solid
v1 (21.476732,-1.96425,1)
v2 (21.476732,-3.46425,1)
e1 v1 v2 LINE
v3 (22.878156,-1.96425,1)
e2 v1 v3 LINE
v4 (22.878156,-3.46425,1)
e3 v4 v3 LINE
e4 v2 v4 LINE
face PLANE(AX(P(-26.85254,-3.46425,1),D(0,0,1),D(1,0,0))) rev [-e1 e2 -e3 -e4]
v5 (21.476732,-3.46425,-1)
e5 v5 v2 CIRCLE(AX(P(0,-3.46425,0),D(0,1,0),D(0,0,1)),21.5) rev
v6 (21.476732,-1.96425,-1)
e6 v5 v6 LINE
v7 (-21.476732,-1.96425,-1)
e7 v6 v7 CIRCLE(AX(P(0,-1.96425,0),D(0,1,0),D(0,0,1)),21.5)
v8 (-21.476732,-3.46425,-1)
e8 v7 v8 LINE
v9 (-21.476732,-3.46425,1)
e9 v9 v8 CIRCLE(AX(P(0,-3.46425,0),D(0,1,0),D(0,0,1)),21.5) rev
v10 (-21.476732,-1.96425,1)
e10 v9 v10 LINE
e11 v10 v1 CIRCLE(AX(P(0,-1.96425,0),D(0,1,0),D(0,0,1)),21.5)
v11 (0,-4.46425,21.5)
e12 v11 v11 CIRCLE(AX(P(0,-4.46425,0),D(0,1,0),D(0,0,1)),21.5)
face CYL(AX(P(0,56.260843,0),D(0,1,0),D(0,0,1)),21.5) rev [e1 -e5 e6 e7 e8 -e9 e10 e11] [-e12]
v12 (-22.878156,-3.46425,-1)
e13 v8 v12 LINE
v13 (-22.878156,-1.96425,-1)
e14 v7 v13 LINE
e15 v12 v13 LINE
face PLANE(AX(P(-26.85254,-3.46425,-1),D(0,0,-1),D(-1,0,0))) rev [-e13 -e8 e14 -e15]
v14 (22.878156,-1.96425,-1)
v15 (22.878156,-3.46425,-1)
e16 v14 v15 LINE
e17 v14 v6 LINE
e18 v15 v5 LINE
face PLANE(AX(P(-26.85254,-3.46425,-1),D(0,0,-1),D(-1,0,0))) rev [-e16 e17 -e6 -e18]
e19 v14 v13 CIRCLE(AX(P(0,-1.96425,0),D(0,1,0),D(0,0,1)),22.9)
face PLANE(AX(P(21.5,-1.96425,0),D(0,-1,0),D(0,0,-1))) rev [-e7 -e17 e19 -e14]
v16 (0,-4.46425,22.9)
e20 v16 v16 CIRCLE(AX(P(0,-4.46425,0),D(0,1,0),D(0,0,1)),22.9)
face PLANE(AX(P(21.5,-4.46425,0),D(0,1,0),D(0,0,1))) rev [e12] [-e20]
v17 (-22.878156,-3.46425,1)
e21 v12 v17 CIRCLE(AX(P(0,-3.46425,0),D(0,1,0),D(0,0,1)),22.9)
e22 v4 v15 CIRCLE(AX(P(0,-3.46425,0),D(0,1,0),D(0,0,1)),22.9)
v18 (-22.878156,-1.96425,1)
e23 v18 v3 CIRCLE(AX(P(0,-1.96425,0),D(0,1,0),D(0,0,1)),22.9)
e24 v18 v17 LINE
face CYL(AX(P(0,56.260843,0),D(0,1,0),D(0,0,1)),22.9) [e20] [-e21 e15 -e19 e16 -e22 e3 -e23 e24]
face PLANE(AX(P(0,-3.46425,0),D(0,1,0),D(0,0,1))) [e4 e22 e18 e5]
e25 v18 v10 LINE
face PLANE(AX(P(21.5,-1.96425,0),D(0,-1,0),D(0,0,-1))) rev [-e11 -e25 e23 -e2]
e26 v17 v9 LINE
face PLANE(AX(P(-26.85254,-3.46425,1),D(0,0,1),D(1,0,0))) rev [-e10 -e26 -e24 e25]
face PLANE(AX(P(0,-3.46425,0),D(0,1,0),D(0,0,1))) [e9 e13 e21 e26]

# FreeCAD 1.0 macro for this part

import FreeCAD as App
import Part
import Sketcher
Q = App.Units.Quantity


def add_polygon(sketch, points):
    """Adds a closed chain of lines whose ends are joined by coincident constraints."""
    first, n = sketch.GeometryCount, len(points)
    for a, b in zip(points, points[1:] + points[:1]):
        sketch.addGeometry(Part.LineSegment(App.Vector(*a, 0), App.Vector(*b, 0)), False)
    for i in range(n):
        sketch.addConstraint(Sketcher.Constraint("Coincident", first + i, 2, first + (i + 1) % n, 1))

doc = App.newDocument("Part")
body = doc.addObject("PartDesign::Body", "Body")

# Sketch on XY plane
sketch1 = body.newObject("Sketcher::SketchObject", "Sketch")
sketch1.AttachmentSupport = (doc.getObject("XY_Plane"), [""])
sketch1.MapMode = "FlatFace"
add_polygon(sketch1, [(21.5, -1.96425), (21.5, -4.46425), (22.9, -4.46425), (22.9, -1.96425)])  # lines 0-3
sketch1.addConstraint([
    Sketcher.Constraint("Vertical", 0),
    Sketcher.Constraint("Horizontal", 1),
    Sketcher.Constraint("Vertical", 2),
    Sketcher.Constraint("Horizontal", 3),
    Sketcher.Constraint("DistanceX", 1, 1, 1, 2, Q("1.4 mm")),
    Sketcher.Constraint("DistanceY", 0, 2, 0, 1, Q("2.5 mm")),
    Sketcher.Constraint("DistanceX", -1, 1, 0, 2, Q("21.5 mm")),
    Sketcher.Constraint("DistanceY", 0, 2, -1, 1, Q("4.46425 mm")),
])
revolution = body.newObject("PartDesign::Revolution", "Revolution")
revolution.Profile = sketch1
revolution.ReferenceAxis = (sketch1, ["V_Axis"])
revolution.Angle = 360

# Sketch on XZ plane
sketch2 = body.newObject("Sketcher::SketchObject", "Sketch001")
sketch2.AttachmentSupport = (doc.getObject("XZ_Plane"), [""])
sketch2.MapMode = "FlatFace"
sketch2.AttachmentOffset = App.Placement(App.Vector(0, 0, 1.96425), App.Rotation())
add_polygon(sketch2, [(-26.85254, -1), (-26.85254, 1), (26.85254, 1), (26.85254, -1)])  # lines 0-3
sketch2.addConstraint([
    Sketcher.Constraint("Vertical", 0),
    Sketcher.Constraint("Horizontal", 1),
    Sketcher.Constraint("Vertical", 2),
    Sketcher.Constraint("Horizontal", 3),
    Sketcher.Constraint("Symmetric", 0, 2, 2, 2, -1, 1),
    Sketcher.Constraint("DistanceY", 0, 1, 0, 2, Q("2 mm")),
    Sketcher.Constraint("DistanceX", 1, 1, 1, 2, Q("53.705081 mm")),
])
pocket1 = body.newObject("PartDesign::Pocket", "Pocket")
pocket1.Profile = sketch2
pocket1.Length = 1.5
pocket1.Reversed = True

doc.recompute()
